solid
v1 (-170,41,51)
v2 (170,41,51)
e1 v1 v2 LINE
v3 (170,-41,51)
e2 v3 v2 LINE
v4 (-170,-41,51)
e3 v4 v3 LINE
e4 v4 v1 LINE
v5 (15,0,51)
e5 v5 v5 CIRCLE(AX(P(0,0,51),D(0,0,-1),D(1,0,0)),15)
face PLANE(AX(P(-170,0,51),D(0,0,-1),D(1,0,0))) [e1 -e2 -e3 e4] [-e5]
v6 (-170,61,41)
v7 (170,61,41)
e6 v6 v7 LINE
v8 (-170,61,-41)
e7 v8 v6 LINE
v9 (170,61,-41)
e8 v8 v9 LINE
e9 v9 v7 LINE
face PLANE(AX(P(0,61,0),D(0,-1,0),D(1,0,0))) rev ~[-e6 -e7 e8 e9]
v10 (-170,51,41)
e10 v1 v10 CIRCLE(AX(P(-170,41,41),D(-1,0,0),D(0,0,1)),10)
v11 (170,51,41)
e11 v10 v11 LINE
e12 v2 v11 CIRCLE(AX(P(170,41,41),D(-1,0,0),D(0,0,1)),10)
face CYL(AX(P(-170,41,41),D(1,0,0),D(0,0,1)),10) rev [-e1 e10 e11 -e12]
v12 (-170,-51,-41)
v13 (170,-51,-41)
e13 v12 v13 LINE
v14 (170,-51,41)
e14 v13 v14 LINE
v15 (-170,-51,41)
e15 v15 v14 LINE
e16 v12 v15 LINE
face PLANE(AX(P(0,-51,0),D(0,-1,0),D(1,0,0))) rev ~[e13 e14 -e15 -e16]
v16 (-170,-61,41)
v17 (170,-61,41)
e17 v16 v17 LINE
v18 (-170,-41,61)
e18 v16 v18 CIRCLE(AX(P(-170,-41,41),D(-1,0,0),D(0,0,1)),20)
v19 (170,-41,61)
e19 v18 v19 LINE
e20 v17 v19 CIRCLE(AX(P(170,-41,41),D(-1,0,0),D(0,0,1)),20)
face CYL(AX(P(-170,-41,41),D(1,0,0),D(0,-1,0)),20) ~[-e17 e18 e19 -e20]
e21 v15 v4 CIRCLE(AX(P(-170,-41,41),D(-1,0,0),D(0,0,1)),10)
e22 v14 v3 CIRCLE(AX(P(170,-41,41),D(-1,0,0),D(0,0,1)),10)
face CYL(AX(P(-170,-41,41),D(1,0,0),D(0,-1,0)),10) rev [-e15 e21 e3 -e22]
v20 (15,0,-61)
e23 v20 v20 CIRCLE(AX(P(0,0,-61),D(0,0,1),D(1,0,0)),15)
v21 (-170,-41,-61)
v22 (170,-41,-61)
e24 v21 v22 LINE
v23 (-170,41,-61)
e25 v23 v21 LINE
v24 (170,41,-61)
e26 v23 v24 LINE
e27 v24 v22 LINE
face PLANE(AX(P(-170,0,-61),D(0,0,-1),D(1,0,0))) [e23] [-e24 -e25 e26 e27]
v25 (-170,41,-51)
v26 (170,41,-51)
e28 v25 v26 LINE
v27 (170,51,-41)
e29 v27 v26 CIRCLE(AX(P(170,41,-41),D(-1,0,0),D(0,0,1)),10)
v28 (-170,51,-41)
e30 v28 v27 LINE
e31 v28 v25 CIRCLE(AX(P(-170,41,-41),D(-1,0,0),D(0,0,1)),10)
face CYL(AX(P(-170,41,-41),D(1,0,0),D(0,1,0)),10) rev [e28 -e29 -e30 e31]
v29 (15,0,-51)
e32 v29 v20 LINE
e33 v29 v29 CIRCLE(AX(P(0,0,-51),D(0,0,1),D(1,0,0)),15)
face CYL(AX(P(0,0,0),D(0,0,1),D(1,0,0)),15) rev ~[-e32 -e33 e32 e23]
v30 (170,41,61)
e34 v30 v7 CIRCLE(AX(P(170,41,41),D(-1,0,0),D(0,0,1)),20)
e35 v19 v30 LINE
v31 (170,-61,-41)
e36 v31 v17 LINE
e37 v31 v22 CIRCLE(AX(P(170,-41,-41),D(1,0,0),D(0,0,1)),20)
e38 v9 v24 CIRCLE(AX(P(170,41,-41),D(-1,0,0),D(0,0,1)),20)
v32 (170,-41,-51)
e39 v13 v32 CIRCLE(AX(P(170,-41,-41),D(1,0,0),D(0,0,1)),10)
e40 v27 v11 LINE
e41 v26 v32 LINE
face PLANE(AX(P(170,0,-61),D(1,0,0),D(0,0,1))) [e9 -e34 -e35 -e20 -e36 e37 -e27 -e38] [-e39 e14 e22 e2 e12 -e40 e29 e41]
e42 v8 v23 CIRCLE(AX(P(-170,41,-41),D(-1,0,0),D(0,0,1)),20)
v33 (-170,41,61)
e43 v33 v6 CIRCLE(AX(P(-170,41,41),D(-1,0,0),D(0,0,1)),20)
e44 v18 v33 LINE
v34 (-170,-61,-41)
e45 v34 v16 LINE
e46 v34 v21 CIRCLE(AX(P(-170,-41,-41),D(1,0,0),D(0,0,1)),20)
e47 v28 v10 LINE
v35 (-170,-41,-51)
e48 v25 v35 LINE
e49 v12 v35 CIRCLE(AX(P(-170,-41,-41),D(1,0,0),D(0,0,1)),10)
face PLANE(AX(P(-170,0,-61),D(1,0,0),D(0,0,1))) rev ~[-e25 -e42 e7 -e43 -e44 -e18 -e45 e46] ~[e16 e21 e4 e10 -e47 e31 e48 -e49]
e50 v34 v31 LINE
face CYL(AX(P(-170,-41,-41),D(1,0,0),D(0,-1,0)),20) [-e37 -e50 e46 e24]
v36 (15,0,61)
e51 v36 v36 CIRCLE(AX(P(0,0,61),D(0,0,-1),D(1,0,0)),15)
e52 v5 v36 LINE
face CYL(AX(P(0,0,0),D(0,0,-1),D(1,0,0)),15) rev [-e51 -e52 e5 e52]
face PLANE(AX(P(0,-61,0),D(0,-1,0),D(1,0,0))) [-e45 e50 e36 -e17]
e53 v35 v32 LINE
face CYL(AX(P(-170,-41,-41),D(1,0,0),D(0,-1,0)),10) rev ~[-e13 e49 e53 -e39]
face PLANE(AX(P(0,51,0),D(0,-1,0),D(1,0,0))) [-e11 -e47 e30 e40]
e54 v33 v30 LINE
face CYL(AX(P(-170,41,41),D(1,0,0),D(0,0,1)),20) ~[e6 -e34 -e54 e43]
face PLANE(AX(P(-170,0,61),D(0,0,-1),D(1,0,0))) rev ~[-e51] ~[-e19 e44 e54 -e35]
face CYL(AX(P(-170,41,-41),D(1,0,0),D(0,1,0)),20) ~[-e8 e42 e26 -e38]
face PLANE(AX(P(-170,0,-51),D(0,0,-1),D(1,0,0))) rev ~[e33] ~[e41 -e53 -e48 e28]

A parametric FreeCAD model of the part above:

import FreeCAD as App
import Part
import Sketcher
from FreeCAD import Vector
Q = App.Units.Quantity


def edges_at(feature, points):
    """Names of the edges that pass closest to the given points."""
    edges = feature.Shape.Edges
    near = lambda p: min(range(len(edges)), key=lambda i: edges[i].distToShape(Part.Vertex(*p))[0])
    return sorted({f"Edge{near(p) + 1}" for p in points})


def faces_at(feature, points):
    """Names of the faces that lie closest to the given points."""
    faces = feature.Shape.Faces
    near = lambda p: min(range(len(faces)), key=lambda i: faces[i].distToShape(Part.Vertex(*p))[0])
    return sorted({f"Face{near(p) + 1}" for p in points})


def add_polygon(sketch, points):
    """Adds a closed chain of lines whose ends are joined by coincident constraints."""
    first, n = sketch.GeometryCount, len(points)
    for a, b in zip(points, points[1:] + points[:1]):
        sketch.addGeometry(Part.LineSegment(App.Vector(*a, 0), App.Vector(*b, 0)), False)
    for i in range(n):
        sketch.addConstraint(Sketcher.Constraint("Coincident", first + i, 2, first + (i + 1) % n, 1))

doc = App.newDocument("Part")
body = doc.addObject("PartDesign::Body", "Body")

# Sketch on XZ plane
sketch1 = doc.addObject("Sketcher::SketchObject", "Sketch")
body.addObject(sketch1)
sketch1.AttachmentSupport = (doc.XZ_Plane, [""])
sketch1.MapMode = "FlatFace"
add_polygon(sketch1, [(-170, 61), (-170, -61), (170, -61), (170, 61)])  # lines 0-3
sketch1.addConstraint([
    Sketcher.Constraint("Vertical", 0),
    Sketcher.Constraint("Horizontal", 1),
    Sketcher.Constraint("Vertical", 2),
    Sketcher.Constraint("Horizontal", 3),
    Sketcher.Constraint("Symmetric", 0, 2, 2, 2, -1, 1),
    Sketcher.Constraint("DistanceX", 1, 1, 1, 2, Q("340 mm")),
    Sketcher.Constraint("DistanceY", 0, 2, 0, 1, Q("122 mm")),
])
pad1 = doc.addObject("PartDesign::Pad", "Pad")
body.addObject(pad1)
pad1.Profile = sketch1
pad1.Length = 122
pad1.Midplane = True
doc.recompute()

fillet = doc.addObject("PartDesign::Fillet", "Fillet")
body.addObject(fillet)
fillet.Base = (pad1, edges_at(pad1, [
    (0, 61, 61),
    (0, -61, 61),
    (0, 61, -61),
    (0, -61, -61),
]))
fillet.Radius = 20
doc.recompute()

thickness = doc.addObject("PartDesign::Thickness", "Thickness")
body.addObject(thickness)
thickness.Base = (fillet, faces_at(fillet, [(170, 0, 0), (-170, 0, 0)]))
thickness.Value = 10
thickness.Reversed = True
thickness.Join = "Arc"

# Sketch on XY plane
sketch2 = doc.addObject("Sketcher::SketchObject", "Sketch001")
body.addObject(sketch2)
sketch2.AttachmentSupport = (doc.XY_Plane, [""])
sketch2.MapMode = "FlatFace"
sketch2.addGeometry(Part.Circle(Vector(0, 0, 0), Vector(0, 0, 1), 15), False)
sketch2.addConstraint([
    Sketcher.Constraint("Coincident", 0, 3, -1, 1),
    Sketcher.Constraint("Diameter", 0, Q("30 mm")),
])
pocket1 = doc.addObject("PartDesign::Pocket", "Pocket")
body.addObject(pocket1)
pocket1.Profile = sketch2
pocket1.Type = "ThroughAll"
pocket1.Midplane = True

doc.recompute()
